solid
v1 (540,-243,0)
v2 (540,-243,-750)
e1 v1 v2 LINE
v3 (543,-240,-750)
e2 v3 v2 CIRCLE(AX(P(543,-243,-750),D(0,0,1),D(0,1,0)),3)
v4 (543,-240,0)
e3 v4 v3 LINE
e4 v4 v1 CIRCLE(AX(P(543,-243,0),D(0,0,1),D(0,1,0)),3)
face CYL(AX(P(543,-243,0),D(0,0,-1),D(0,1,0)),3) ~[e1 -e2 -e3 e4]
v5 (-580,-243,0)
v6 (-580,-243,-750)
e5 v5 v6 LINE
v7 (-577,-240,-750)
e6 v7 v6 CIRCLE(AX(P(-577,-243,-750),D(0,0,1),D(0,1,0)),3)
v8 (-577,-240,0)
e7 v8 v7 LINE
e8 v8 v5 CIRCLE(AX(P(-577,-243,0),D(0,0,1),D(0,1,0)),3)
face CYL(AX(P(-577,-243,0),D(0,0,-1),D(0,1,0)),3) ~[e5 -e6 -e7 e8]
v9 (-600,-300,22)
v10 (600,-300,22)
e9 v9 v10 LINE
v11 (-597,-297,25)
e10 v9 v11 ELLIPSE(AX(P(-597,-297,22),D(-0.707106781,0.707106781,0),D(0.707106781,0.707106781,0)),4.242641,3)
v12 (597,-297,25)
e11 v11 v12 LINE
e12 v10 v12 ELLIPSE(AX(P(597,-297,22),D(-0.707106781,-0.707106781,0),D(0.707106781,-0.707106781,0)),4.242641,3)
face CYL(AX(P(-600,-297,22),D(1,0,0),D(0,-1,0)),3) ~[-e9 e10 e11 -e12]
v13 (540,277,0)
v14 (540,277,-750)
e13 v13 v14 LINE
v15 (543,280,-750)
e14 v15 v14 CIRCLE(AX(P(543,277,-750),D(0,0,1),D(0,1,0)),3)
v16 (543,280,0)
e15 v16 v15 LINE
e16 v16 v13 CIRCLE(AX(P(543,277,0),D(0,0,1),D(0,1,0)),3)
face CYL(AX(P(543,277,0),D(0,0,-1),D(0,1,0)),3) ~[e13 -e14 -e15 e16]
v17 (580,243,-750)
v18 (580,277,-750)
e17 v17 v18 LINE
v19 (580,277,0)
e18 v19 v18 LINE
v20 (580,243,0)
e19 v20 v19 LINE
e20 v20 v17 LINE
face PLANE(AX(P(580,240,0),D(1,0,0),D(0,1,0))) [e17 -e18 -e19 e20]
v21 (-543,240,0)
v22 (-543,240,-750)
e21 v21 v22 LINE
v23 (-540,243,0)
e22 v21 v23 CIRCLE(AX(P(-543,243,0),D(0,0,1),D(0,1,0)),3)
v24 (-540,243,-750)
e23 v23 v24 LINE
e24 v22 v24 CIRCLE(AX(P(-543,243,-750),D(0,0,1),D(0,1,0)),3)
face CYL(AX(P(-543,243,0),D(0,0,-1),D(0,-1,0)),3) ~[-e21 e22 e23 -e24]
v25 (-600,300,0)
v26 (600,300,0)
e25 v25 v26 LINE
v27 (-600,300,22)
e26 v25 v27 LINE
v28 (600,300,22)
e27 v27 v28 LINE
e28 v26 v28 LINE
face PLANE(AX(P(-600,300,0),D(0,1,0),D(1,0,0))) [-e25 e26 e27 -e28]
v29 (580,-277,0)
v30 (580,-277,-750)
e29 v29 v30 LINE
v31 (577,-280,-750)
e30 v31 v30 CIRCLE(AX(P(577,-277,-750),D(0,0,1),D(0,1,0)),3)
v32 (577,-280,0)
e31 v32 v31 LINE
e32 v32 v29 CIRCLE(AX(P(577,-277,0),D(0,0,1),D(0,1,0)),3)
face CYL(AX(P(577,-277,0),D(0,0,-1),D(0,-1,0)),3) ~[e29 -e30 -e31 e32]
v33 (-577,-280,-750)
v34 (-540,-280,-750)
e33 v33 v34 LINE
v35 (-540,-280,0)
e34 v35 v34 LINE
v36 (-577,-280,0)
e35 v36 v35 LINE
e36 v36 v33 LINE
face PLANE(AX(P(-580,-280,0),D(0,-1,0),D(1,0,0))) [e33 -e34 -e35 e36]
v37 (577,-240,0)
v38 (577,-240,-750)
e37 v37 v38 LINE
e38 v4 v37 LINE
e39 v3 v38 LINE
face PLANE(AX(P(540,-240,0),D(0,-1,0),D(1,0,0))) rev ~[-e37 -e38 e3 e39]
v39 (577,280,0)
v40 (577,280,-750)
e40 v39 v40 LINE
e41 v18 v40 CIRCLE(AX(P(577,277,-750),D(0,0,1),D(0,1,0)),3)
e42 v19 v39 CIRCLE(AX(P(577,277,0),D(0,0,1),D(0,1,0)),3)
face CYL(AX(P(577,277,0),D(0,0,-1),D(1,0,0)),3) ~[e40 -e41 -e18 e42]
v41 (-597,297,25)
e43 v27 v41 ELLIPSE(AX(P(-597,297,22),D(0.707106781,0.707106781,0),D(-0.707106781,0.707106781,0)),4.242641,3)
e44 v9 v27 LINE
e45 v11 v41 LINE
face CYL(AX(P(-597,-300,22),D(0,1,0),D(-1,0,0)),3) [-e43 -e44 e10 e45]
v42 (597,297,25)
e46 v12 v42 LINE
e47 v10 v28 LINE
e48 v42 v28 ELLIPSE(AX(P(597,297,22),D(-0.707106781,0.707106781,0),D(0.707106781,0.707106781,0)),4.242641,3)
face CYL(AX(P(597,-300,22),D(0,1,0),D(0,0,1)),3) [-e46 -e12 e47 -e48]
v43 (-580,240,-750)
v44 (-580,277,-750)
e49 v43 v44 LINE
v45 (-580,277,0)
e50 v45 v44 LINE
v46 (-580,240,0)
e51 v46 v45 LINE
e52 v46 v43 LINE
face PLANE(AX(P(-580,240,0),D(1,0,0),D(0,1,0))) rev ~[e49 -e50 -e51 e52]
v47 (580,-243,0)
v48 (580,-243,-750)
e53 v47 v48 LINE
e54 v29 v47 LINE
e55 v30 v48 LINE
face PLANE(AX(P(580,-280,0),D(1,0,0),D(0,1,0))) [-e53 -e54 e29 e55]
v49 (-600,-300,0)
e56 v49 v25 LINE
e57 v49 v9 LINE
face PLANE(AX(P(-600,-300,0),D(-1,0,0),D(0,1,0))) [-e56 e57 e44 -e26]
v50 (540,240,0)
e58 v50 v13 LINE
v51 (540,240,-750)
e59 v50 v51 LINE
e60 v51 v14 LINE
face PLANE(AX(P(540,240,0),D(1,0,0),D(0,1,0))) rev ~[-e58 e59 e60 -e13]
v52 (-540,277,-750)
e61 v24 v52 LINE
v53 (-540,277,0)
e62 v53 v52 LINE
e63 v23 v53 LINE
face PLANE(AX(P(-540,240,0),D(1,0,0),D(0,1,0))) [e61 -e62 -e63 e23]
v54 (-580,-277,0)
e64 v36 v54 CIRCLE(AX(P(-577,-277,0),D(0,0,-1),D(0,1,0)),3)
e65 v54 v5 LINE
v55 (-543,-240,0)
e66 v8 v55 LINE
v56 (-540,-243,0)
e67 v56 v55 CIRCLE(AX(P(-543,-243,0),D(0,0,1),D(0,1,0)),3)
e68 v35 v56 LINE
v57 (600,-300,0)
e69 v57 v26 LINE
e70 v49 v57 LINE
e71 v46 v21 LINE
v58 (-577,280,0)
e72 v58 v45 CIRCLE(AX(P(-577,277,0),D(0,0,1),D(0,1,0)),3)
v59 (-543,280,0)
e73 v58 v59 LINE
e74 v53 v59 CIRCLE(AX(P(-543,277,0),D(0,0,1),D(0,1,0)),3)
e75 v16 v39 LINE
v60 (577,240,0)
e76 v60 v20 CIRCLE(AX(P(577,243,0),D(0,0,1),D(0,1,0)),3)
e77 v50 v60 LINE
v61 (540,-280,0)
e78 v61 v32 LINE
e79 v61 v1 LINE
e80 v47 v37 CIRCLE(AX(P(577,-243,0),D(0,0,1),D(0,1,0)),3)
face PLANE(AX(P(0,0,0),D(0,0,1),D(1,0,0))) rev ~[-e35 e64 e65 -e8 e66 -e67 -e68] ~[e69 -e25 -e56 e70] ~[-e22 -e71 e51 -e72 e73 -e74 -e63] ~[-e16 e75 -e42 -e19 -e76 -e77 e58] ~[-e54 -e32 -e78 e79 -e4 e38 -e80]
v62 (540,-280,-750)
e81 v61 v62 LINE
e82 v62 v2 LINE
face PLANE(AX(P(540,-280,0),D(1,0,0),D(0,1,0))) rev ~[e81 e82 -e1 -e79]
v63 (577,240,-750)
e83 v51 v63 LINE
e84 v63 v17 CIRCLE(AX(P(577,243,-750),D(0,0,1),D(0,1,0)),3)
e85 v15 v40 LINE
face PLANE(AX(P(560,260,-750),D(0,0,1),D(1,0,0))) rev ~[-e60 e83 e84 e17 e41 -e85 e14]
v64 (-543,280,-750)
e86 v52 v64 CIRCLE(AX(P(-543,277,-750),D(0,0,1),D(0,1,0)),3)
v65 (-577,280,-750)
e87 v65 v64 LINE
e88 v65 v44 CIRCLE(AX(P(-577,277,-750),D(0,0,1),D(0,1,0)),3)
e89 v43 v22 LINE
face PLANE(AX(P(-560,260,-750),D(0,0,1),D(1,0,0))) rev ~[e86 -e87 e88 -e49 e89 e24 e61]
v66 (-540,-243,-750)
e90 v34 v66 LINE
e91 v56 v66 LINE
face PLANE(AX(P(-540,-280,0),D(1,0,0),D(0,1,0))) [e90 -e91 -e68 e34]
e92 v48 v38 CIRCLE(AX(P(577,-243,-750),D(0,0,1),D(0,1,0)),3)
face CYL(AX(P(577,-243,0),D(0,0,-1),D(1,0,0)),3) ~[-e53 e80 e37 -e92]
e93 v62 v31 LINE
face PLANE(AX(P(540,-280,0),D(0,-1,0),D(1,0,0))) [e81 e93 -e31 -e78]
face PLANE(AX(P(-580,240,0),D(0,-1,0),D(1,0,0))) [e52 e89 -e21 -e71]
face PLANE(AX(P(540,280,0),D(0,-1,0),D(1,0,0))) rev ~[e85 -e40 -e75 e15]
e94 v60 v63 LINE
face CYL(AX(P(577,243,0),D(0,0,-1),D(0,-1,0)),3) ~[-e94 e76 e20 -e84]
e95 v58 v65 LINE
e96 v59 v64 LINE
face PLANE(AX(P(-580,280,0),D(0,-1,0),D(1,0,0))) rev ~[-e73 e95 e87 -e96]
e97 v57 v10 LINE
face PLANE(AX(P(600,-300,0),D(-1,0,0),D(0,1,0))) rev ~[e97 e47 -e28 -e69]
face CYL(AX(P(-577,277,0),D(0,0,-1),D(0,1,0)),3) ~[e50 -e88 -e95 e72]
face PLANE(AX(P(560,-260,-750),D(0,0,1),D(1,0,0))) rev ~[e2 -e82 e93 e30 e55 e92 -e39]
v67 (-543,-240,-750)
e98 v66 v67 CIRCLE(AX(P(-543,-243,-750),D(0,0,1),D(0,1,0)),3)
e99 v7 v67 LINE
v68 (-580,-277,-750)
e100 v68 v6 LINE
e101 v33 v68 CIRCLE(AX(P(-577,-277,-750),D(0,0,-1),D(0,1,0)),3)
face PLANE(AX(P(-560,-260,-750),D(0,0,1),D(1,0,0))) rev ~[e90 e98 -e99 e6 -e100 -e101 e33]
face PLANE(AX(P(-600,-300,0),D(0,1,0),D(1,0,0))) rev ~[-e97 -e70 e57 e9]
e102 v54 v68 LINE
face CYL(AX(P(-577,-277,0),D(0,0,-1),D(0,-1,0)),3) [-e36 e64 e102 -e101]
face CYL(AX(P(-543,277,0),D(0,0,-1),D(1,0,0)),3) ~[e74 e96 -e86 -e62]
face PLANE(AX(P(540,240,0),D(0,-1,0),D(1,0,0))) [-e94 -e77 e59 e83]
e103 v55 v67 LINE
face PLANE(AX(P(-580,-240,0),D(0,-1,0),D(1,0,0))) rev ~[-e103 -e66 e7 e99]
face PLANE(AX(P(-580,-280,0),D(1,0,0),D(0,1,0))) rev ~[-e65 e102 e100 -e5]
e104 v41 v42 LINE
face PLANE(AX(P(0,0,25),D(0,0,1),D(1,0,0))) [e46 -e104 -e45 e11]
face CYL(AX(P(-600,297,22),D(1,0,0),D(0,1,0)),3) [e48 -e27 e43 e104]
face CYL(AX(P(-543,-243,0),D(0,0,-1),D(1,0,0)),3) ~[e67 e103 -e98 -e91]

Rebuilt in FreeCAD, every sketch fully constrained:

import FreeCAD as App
import Part
import Sketcher
Q = App.Units.Quantity


def edges_at(feature, points):
    """Names of the edges that pass closest to the given points."""
    edges = feature.Shape.Edges
    near = lambda p: min(range(len(edges)), key=lambda i: edges[i].distToShape(Part.Vertex(*p))[0])
    return sorted({f"Edge{near(p) + 1}" for p in points})


def add_polygon(sketch, points):
    """Adds a closed chain of lines whose ends are joined by coincident constraints."""
    first, n = sketch.GeometryCount, len(points)
    for a, b in zip(points, points[1:] + points[:1]):
        sketch.addGeometry(Part.LineSegment(App.Vector(*a, 0), App.Vector(*b, 0)), False)
    for i in range(n):
        sketch.addConstraint(Sketcher.Constraint("Coincident", first + i, 2, first + (i + 1) % n, 1))

doc = App.newDocument("Part")
body = doc.addObject("PartDesign::Body", "Body")

sketch1 = body.newObject("Sketcher::SketchObject", "Sketch")
sketch1.AttachmentSupport = (doc.getObject("XY_Plane"), [""])
sketch1.MapMode = "FlatFace"
add_polygon(sketch1, [(-600, 300), (-600, -300), (600, -300), (600, 300)])
sketch1.addConstraint([
    Sketcher.Constraint("Vertical", 0),
    Sketcher.Constraint("Horizontal", 1),
    Sketcher.Constraint("Vertical", 2),
    Sketcher.Constraint("Horizontal", 3),
    Sketcher.Constraint("Symmetric", 0, 2, 2, 2, -1, 1),
    Sketcher.Constraint("DistanceX", 1, 1, 1, 2, Q("1200 mm")),
    Sketcher.Constraint("DistanceY", 0, 2, 0, 1, Q("600 mm")),
])
pad1 = body.newObject("PartDesign::Pad", "Pad")
pad1.Profile = sketch1
pad1.Length = 25

sketch2 = body.newObject("Sketcher::SketchObject", "Sketch001")
sketch2.AttachmentSupport = (doc.getObject("XY_Plane"), [""])
sketch2.MapMode = "FlatFace"
add_polygon(sketch2, [(-580, 280), (-580, 240), (-540, 240), (-540, 280)])
add_polygon(sketch2, [(540, 280), (540, 240), (580, 240), (580, 280)])
add_polygon(sketch2, [(-580, -240), (-580, -280), (-540, -280), (-540, -240)])
add_polygon(sketch2, [(540, -240), (540, -280), (580, -280), (580, -240)])
sketch2.addConstraint([
    Sketcher.Constraint("Vertical", 0),
    Sketcher.Constraint("Horizontal", 1),
    Sketcher.Constraint("Vertical", 2),
    Sketcher.Constraint("Horizontal", 3),
    Sketcher.Constraint("Vertical", 4),
    Sketcher.Constraint("Horizontal", 5),
    Sketcher.Constraint("Vertical", 6),
    Sketcher.Constraint("Horizontal", 7),
    Sketcher.Constraint("Vertical", 8),
    Sketcher.Constraint("Horizontal", 9),
    Sketcher.Constraint("Vertical", 10),
    Sketcher.Constraint("Horizontal", 11),
    Sketcher.Constraint("Vertical", 12),
    Sketcher.Constraint("Horizontal", 13),
    Sketcher.Constraint("Vertical", 14),
    Sketcher.Constraint("Horizontal", 15),
    Sketcher.Constraint("Symmetric", 6, 2, 8, 2, -1, 1),
    Sketcher.Constraint("Symmetric", 4, 2, 10, 2, -1, 1),
    Sketcher.Constraint("Symmetric", 2, 2, 12, 2, -1, 1),
    Sketcher.Constraint("Symmetric", 0, 2, 14, 2, -1, 1),
    Sketcher.Constraint("Symmetric", 1, 2, 4, 2, -2),
    Sketcher.Constraint("Symmetric", 3, 2, 6, 2, -2),
    Sketcher.Constraint("Equal", 15, 0),
    Sketcher.Constraint("DistanceX", 1, 1, 1, 2, Q("40 mm")),
    Sketcher.Constraint("DistanceX", 0, 2, -1, 1, Q("580 mm")),
    Sketcher.Constraint("DistanceY", -1, 1, 0, 2, Q("240 mm")),
])
pad2 = body.newObject("PartDesign::Pad", "Pad001")
pad2.Profile = sketch2
pad2.Length = 750
pad2.Reversed = True
doc.recompute()

fillet = body.newObject("PartDesign::Fillet", "Fillet")
fillet.Base = (pad2, edges_at(pad2, [
    (-600, 0, 25),
    (0, -300, 25),
    (580, 280, -375),
    (580, 240, -375),
    (540, 280, -375),
    (-540, -240, -375),
    (-580, -280, -375),
    (-580, -240, -375),
    (580, -240, -375),
    (580, -280, -375),
    (540, -240, -375),
    (-540, 280, -375),
    (-540, 240, -375),
    (-580, 280, -375),
    (600, 0, 25),
    (0, 300, 25),
]))
fillet.Radius = 3

doc.recompute()
